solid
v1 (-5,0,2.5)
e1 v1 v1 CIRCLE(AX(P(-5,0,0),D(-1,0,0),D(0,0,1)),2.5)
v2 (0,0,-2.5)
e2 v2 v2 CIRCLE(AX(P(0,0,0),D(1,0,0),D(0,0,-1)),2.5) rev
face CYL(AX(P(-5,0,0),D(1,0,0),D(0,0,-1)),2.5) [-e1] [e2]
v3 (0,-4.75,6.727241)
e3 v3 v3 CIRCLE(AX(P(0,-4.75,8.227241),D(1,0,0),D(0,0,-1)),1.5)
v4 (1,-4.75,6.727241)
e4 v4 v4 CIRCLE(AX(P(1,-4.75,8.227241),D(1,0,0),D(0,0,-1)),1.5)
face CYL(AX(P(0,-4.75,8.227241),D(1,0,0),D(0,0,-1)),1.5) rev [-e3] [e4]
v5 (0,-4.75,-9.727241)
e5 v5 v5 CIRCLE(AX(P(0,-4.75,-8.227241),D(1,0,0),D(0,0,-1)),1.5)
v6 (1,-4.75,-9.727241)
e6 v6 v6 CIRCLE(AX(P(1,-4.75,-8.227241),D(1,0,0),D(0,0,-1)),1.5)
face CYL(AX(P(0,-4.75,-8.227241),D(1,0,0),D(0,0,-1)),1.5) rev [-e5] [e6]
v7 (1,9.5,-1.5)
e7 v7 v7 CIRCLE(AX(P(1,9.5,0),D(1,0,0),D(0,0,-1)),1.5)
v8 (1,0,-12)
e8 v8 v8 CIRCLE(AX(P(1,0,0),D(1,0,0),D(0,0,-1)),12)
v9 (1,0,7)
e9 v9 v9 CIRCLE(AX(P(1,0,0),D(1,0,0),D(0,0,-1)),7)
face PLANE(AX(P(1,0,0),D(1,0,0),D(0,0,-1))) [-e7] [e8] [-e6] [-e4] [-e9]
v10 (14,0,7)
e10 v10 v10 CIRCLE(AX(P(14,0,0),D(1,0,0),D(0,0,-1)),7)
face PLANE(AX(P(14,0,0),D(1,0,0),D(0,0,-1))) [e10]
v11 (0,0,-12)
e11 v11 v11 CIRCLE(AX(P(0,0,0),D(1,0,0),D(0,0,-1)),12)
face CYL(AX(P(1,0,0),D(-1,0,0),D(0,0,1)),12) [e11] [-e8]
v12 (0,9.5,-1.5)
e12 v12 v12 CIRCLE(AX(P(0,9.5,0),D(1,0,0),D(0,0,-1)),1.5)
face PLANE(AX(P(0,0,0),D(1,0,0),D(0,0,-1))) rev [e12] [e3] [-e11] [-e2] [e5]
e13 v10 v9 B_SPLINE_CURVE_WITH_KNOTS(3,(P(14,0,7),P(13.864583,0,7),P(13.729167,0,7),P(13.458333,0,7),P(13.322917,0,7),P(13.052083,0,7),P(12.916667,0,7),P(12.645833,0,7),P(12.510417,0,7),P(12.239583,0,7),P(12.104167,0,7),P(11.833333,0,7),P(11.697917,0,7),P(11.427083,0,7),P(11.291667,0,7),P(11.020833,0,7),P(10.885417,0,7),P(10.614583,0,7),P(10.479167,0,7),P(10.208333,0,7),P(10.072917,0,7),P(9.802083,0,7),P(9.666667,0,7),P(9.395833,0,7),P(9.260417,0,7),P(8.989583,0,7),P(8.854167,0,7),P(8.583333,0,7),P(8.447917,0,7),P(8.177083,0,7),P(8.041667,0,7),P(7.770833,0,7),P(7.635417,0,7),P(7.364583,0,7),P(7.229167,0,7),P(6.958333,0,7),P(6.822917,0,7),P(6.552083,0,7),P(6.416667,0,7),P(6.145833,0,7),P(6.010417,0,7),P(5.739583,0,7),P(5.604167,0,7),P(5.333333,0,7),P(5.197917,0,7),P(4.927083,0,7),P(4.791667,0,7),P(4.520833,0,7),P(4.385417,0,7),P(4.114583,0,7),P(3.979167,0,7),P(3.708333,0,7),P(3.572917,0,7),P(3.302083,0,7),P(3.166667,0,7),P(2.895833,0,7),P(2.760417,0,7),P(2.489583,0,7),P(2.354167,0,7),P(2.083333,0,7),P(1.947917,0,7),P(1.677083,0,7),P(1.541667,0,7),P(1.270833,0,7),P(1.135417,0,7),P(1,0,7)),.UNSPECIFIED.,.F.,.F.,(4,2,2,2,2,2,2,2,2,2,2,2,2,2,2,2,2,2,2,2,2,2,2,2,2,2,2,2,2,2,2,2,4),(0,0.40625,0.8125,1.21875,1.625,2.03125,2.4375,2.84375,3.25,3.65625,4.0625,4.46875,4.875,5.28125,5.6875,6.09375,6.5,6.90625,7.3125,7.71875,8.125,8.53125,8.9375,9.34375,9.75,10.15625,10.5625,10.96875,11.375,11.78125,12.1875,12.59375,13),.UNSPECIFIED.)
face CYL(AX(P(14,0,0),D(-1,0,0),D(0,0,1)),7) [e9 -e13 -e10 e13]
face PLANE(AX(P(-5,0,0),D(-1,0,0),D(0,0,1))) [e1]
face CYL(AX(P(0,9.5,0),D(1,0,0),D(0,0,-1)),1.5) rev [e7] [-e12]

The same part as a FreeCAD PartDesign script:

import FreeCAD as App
import Part
import Sketcher

V = App.Vector

doc = App.newDocument("Part")
body = doc.addObject("PartDesign::Body", "Body")

# Sketch on YZ plane
sketch1 = body.newObject("Sketcher::SketchObject", "Sketch")
sketch1.AttachmentSupport = (doc.getObject("YZ_Plane"), [""])
sketch1.MapMode = "FlatFace"
sketch1.addGeometry(Part.Circle(V(0, 0, 0), V(0, 0, 1), 12), False)
sketch1.addConstraint([
    Sketcher.Constraint("Coincident", 0, 3, -1, 1),
    Sketcher.Constraint("Diameter", 0, 24.0),
])
pad1 = body.newObject("PartDesign::Pad", "Pad")
pad1.Profile = sketch1
pad1.Length = 1

# Sketch on YZ plane
sketch2 = body.newObject("Sketcher::SketchObject", "Sketch001")
sketch2.AttachmentSupport = (doc.getObject("YZ_Plane"), [""])
sketch2.MapMode = "FlatFace"
sketch2.AttachmentOffset = App.Placement(V(0, 0, 1), App.Rotation())
sketch2.addGeometry(Part.Circle(V(0, 0, 0), V(0, 0, 1), 7), False)
sketch2.addConstraint([
    Sketcher.Constraint("Coincident", 0, 3, -1, 1),
    Sketcher.Constraint("Diameter", 0, 14.0),
])
pad2 = body.newObject("PartDesign::Pad", "Pad001")
pad2.Profile = sketch2
pad2.Length = 13

# Sketch on YZ plane
sketch3 = body.newObject("Sketcher::SketchObject", "Sketch002")
sketch3.AttachmentSupport = (doc.getObject("YZ_Plane"), [""])
sketch3.MapMode = "FlatFace"
sketch3.AttachmentOffset = App.Placement(V(0, 0, 1), App.Rotation())
sketch3.addGeometry([
    Part.Circle(V(9.5, 0, 0), V(0, 0, 1), 1.5),
    Part.Circle(V(-4.8, -8.2, 0), V(0, 0, 1), 1.5),
    Part.Circle(V(-4.8, 8.2, 0), V(0, 0, 1), 1.5),
], False)
sketch3.addConstraint([
    Sketcher.Constraint("Equal", 0, 1),
    Sketcher.Constraint("Equal", 1, 2),
    Sketcher.Constraint("Symmetric", 1, 3, 2, 3, -1),
    Sketcher.Constraint("PointOnObject", 0, 3, -1),
    Sketcher.Constraint("Diameter", 0, 3.0),
    Sketcher.Constraint("DistanceX", -1, 1, 0, 3, 9.5),
    Sketcher.Constraint("DistanceX", 1, 3, -1, 1, 4.75),
    Sketcher.Constraint("DistanceY", 1, 3, -1, 1, 8.227241),
])
pocket1 = body.newObject("PartDesign::Pocket", "Pocket")
pocket1.Profile = sketch3
pocket1.Length = 1

# Sketch on YZ plane
sketch4 = body.newObject("Sketcher::SketchObject", "Sketch003")
sketch4.AttachmentSupport = (doc.getObject("YZ_Plane"), [""])
sketch4.MapMode = "FlatFace"
sketch4.addGeometry(Part.Circle(V(0, 0, 0), V(0, 0, 1), 2.5), False)
sketch4.addConstraint([
    Sketcher.Constraint("Coincident", 0, 3, -1, 1),
    Sketcher.Constraint("Diameter", 0, 5.0),
])
pad3 = body.newObject("PartDesign::Pad", "Pad002")
pad3.Profile = sketch4
pad3.Length = 5
pad3.Reversed = True

doc.recompute()
